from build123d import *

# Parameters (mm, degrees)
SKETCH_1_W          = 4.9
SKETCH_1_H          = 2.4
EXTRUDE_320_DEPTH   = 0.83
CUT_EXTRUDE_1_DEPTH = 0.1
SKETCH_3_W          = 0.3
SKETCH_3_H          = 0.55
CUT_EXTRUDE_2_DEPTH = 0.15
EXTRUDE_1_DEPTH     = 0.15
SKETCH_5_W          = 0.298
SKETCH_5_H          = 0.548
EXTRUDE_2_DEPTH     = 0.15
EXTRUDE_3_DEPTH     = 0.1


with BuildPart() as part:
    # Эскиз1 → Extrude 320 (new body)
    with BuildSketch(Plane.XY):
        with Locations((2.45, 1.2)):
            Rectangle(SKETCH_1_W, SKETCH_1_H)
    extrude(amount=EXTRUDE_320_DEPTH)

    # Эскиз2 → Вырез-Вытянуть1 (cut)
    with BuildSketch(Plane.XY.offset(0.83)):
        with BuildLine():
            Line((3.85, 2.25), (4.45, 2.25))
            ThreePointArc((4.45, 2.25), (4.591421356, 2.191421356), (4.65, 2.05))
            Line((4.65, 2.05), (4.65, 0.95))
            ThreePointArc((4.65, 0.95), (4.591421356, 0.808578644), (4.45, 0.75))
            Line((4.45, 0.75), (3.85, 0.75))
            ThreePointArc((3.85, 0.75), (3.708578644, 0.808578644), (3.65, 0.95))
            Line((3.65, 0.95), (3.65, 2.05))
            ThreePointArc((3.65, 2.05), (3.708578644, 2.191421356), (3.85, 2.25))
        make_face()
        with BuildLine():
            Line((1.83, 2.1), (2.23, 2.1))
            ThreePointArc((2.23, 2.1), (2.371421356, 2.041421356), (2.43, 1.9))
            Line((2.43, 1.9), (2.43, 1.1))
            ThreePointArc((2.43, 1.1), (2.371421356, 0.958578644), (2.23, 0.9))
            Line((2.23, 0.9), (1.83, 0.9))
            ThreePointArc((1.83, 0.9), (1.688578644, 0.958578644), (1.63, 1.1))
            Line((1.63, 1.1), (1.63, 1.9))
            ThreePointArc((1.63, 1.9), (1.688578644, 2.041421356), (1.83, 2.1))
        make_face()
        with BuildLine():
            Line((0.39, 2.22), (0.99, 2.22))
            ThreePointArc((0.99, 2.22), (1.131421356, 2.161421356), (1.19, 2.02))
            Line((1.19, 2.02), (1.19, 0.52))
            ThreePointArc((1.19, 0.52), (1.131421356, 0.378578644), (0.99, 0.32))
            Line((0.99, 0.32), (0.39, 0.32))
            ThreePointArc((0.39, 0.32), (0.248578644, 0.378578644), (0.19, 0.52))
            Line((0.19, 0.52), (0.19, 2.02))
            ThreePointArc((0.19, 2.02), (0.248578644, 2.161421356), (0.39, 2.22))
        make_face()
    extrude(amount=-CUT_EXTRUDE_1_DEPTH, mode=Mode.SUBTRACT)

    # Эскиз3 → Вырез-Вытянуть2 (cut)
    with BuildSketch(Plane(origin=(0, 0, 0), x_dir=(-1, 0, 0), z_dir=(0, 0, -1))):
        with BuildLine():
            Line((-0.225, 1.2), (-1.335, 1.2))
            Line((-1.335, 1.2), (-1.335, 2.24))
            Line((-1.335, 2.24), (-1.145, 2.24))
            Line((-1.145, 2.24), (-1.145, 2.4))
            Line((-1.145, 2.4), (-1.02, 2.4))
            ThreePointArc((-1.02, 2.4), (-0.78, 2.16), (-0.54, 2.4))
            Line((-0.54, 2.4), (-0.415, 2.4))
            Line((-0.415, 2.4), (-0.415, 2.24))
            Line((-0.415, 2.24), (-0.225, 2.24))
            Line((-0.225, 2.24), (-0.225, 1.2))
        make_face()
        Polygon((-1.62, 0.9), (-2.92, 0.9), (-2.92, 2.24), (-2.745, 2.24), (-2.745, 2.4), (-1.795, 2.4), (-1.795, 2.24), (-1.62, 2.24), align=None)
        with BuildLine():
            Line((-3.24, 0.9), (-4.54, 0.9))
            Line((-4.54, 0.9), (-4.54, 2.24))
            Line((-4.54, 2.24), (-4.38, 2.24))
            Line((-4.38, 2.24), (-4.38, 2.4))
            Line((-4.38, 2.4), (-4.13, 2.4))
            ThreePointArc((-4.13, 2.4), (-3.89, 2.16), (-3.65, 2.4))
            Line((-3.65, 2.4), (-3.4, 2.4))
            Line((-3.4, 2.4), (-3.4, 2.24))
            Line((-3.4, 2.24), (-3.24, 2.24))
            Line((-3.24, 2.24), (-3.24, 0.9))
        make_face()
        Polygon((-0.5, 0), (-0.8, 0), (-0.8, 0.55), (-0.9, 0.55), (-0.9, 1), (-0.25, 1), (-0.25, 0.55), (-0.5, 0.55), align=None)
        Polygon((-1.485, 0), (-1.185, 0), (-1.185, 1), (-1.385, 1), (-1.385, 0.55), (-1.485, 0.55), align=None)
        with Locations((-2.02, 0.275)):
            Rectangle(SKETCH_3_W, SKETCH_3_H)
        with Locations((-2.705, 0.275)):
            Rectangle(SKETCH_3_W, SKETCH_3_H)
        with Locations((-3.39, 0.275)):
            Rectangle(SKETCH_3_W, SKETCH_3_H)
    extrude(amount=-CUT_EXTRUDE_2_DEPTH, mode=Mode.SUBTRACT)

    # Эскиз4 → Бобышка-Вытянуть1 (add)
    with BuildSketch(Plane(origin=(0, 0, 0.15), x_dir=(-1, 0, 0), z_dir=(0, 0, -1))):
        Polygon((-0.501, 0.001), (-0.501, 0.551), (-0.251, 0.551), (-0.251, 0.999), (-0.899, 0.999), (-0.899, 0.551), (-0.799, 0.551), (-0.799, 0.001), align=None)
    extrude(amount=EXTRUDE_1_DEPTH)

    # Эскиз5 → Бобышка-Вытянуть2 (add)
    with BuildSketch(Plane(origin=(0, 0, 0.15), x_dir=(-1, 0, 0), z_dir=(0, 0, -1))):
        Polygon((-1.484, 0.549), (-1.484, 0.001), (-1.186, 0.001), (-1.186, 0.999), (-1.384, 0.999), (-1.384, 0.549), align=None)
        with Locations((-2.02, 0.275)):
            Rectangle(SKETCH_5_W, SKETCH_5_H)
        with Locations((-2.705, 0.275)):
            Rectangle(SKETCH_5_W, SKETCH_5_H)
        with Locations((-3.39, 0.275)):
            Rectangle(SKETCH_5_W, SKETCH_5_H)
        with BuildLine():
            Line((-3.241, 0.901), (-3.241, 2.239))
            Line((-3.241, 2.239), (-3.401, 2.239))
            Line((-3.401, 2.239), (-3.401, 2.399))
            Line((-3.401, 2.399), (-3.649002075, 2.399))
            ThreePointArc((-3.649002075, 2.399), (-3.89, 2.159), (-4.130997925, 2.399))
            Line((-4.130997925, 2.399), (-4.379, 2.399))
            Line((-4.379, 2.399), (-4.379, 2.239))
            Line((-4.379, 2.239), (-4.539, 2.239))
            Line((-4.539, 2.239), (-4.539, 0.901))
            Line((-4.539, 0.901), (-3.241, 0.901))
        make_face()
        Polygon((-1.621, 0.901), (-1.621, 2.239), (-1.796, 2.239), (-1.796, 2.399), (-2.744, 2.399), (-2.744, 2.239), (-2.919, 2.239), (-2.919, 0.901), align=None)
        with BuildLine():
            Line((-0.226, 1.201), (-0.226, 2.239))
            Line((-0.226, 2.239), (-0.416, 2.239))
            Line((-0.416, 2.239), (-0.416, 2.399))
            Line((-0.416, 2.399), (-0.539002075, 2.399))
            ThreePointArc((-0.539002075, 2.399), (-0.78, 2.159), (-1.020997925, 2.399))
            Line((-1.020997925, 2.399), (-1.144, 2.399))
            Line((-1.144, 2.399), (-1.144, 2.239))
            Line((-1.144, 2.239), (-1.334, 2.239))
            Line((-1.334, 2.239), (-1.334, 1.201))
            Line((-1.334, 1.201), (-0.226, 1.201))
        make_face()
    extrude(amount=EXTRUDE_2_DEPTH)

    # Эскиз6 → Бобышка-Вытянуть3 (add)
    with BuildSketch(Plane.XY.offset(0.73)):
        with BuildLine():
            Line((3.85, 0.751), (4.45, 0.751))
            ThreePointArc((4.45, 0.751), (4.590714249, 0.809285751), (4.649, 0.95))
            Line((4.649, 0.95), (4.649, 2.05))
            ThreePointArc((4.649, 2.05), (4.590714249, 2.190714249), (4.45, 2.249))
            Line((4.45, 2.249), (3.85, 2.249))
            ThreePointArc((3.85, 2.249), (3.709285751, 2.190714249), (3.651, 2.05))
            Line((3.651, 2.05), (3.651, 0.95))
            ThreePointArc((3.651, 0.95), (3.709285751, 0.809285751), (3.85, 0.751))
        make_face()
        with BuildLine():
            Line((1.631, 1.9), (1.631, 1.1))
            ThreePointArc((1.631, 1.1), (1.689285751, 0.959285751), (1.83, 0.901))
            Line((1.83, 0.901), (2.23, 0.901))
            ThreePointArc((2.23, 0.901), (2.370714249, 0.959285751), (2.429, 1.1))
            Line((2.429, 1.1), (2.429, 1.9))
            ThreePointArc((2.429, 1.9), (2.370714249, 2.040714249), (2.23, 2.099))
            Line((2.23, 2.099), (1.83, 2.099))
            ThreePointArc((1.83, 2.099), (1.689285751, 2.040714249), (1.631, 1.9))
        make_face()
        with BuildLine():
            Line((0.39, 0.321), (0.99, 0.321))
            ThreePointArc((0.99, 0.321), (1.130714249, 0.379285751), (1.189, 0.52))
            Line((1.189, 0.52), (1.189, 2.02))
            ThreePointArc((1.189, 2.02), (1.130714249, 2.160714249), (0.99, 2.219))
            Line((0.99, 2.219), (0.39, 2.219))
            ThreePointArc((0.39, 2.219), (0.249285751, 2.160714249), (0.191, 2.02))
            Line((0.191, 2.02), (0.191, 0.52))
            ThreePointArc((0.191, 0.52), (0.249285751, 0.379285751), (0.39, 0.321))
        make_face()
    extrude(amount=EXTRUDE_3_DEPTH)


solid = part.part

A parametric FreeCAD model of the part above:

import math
import FreeCAD as App
import Part
import Sketcher
from FreeCAD import Vector
Q = App.Units.Quantity


def add_polygon(sketch, points):
    """Adds a closed chain of lines whose ends are joined by coincident constraints."""
    first, n = sketch.GeometryCount, len(points)
    for a, b in zip(points, points[1:] + points[:1]):
        sketch.addGeometry(Part.LineSegment(App.Vector(*a, 0), App.Vector(*b, 0)), False)
    for i in range(n):
        sketch.addConstraint(Sketcher.Constraint("Coincident", first + i, 2, first + (i + 1) % n, 1))

doc = App.newDocument("Part")
body = doc.addObject("PartDesign::Body", "Body")

sketch1 = body.newObject("Sketcher::SketchObject", "Sketch")
sketch1.AttachmentSupport = (doc.getObject("XY_Plane"), [""])
sketch1.MapMode = "FlatFace"
add_polygon(sketch1, [(0, 2.4), (0, 0), (4.9, 0), (4.9, 2.4)])
sketch1.addConstraint([
    Sketcher.Constraint("Vertical", 0),
    Sketcher.Constraint("Horizontal", 1),
    Sketcher.Constraint("Vertical", 2),
    Sketcher.Constraint("Horizontal", 3),
    Sketcher.Constraint("Coincident", 0, 2, -1, 1),
    Sketcher.Constraint("DistanceX", 1, 1, 1, 2, Q("4.9 mm")),
    Sketcher.Constraint("DistanceY", 0, 2, 0, 1, Q("2.4 mm")),
])
pad1 = body.newObject("PartDesign::Pad", "Pad")
pad1.Profile = sketch1
pad1.Length = 0.83

sketch2 = body.newObject("Sketcher::SketchObject", "Sketch001")
sketch2.AttachmentSupport = (doc.getObject("XY_Plane"), [""])
sketch2.MapMode = "FlatFace"
sketch2.AttachmentOffset = App.Placement(Vector(0, 0, 0.83), App.Rotation())
sketch2.addGeometry([
    Part.LineSegment(Vector(4.45, 2.25, 0), Vector(3.85, 2.25, 0)),
    Part.ArcOfCircle(Part.Circle(Vector(3.85, 2.05, 0), Vector(0, 0, 1), 0.2), math.radians(90), math.radians(180)),
    Part.LineSegment(Vector(3.65, 2.05, 0), Vector(3.65, 0.95, 0)),
    Part.ArcOfCircle(Part.Circle(Vector(3.85, 0.95, 0), Vector(0, 0, 1), 0.2), math.radians(-180), math.radians(-90)),
    Part.LineSegment(Vector(3.85, 0.75, 0), Vector(4.45, 0.75, 0)),
    Part.ArcOfCircle(Part.Circle(Vector(4.45, 0.95, 0), Vector(0, 0, 1), 0.2), math.radians(-90), math.radians(0)),
    Part.LineSegment(Vector(4.65, 0.95, 0), Vector(4.65, 2.05, 0)),
    Part.ArcOfCircle(Part.Circle(Vector(4.45, 2.05, 0), Vector(0, 0, 1), 0.2), math.radians(0), math.radians(90)),
    Part.LineSegment(Vector(2.23, 2.1, 0), Vector(1.83, 2.1, 0)),
    Part.ArcOfCircle(Part.Circle(Vector(1.83, 1.9, 0), Vector(0, 0, 1), 0.2), math.radians(90), math.radians(180)),
    Part.LineSegment(Vector(1.63, 1.9, 0), Vector(1.63, 1.1, 0)),
    Part.ArcOfCircle(Part.Circle(Vector(1.83, 1.1, 0), Vector(0, 0, 1), 0.2), math.radians(-180), math.radians(-90)),
    Part.LineSegment(Vector(1.83, 0.9, 0), Vector(2.23, 0.9, 0)),
    Part.ArcOfCircle(Part.Circle(Vector(2.23, 1.1, 0), Vector(0, 0, 1), 0.2), math.radians(-90), math.radians(0)),
    Part.LineSegment(Vector(2.43, 1.1, 0), Vector(2.43, 1.9, 0)),
    Part.ArcOfCircle(Part.Circle(Vector(2.23, 1.9, 0), Vector(0, 0, 1), 0.2), math.radians(0), math.radians(90)),
    Part.LineSegment(Vector(0.99, 2.22, 0), Vector(0.39, 2.22, 0)),
    Part.ArcOfCircle(Part.Circle(Vector(0.39, 2.02, 0), Vector(0, 0, 1), 0.2), math.radians(90), math.radians(180)),
    Part.LineSegment(Vector(0.19, 2.02, 0), Vector(0.19, 0.52, 0)),
    Part.ArcOfCircle(Part.Circle(Vector(0.39, 0.52, 0), Vector(0, 0, 1), 0.2), math.radians(-180), math.radians(-90)),
    Part.LineSegment(Vector(0.39, 0.32, 0), Vector(0.99, 0.32, 0)),
    Part.ArcOfCircle(Part.Circle(Vector(0.99, 0.52, 0), Vector(0, 0, 1), 0.2), math.radians(-90), math.radians(0)),
    Part.LineSegment(Vector(1.19, 0.52, 0), Vector(1.19, 2.02, 0)),
    Part.ArcOfCircle(Part.Circle(Vector(0.99, 2.02, 0), Vector(0, 0, 1), 0.2), math.radians(0), math.radians(90)),
], False)
sketch2.addConstraint([
    Sketcher.Constraint("Tangent", 0, 2, 1, 1),
    Sketcher.Constraint("Tangent", 1, 2, 2, 1),
    Sketcher.Constraint("Tangent", 2, 2, 3, 1),
    Sketcher.Constraint("Tangent", 3, 2, 4, 1),
    Sketcher.Constraint("Tangent", 4, 2, 5, 1),
    Sketcher.Constraint("Tangent", 5, 2, 6, 1),
    Sketcher.Constraint("Tangent", 6, 2, 7, 1),
    Sketcher.Constraint("Tangent", 7, 2, 0, 1),
    Sketcher.Constraint("Tangent", 8, 2, 9, 1),
    Sketcher.Constraint("Tangent", 9, 2, 10, 1),
    Sketcher.Constraint("Tangent", 10, 2, 11, 1),
    Sketcher.Constraint("Tangent", 11, 2, 12, 1),
    Sketcher.Constraint("Tangent", 12, 2, 13, 1),
    Sketcher.Constraint("Tangent", 13, 2, 14, 1),
    Sketcher.Constraint("Tangent", 14, 2, 15, 1),
    Sketcher.Constraint("Tangent", 15, 2, 8, 1),
    Sketcher.Constraint("Tangent", 16, 2, 17, 1),
    Sketcher.Constraint("Tangent", 17, 2, 18, 1),
    Sketcher.Constraint("Tangent", 18, 2, 19, 1),
    Sketcher.Constraint("Tangent", 19, 2, 20, 1),
    Sketcher.Constraint("Tangent", 20, 2, 21, 1),
    Sketcher.Constraint("Tangent", 21, 2, 22, 1),
    Sketcher.Constraint("Tangent", 22, 2, 23, 1),
    Sketcher.Constraint("Tangent", 23, 2, 16, 1),
    Sketcher.Constraint("Horizontal", 0),
    Sketcher.Constraint("Vertical", 2),
    Sketcher.Constraint("Horizontal", 4),
    Sketcher.Constraint("Vertical", 6),
    Sketcher.Constraint("Horizontal", 8),
    Sketcher.Constraint("Vertical", 10),
    Sketcher.Constraint("Horizontal", 12),
    Sketcher.Constraint("Vertical", 14),
    Sketcher.Constraint("Horizontal", 16),
    Sketcher.Constraint("Vertical", 18),
    Sketcher.Constraint("Horizontal", 20),
    Sketcher.Constraint("Vertical", 22),
    Sketcher.Constraint("Equal", 1, 3),
    Sketcher.Constraint("Equal", 3, 5),
    Sketcher.Constraint("Equal", 5, 7),
    Sketcher.Constraint("Equal", 7, 9),
    Sketcher.Constraint("Equal", 9, 11),
    Sketcher.Constraint("Equal", 11, 13),
    Sketcher.Constraint("Equal", 13, 15),
    Sketcher.Constraint("Equal", 15, 17),
    Sketcher.Constraint("Equal", 17, 19),
    Sketcher.Constraint("Equal", 19, 21),
    Sketcher.Constraint("Equal", 21, 23),
    Sketcher.Constraint("Equal", 4, 16),
    Sketcher.Constraint("Radius", 1, Q("0.2 mm")),
    Sketcher.Constraint("DistanceX", 0, 2, 0, 1, Q("0.6 mm")),
    Sketcher.Constraint("DistanceX", 8, 2, 8, 1, Q("0.4 mm")),
    Sketcher.Constraint("DistanceY", 2, 2, 2, 1, Q("1.1 mm")),
    Sketcher.Constraint("DistanceY", 10, 2, 10, 1, Q("0.8 mm")),
    Sketcher.Constraint("DistanceY", 18, 2, 18, 1, Q("1.5 mm")),
    Sketcher.Constraint("DistanceY", -1, 1, 9, 3, Q("1.9 mm")),
    Sketcher.Constraint("DistanceX", -1, 1, 1, 3, Q("3.85 mm")),
    Sketcher.Constraint("DistanceY", -1, 1, 1, 3, Q("2.05 mm")),
    Sketcher.Constraint("DistanceX", -1, 1, 9, 3, Q("1.83 mm")),
    Sketcher.Constraint("DistanceX", -1, 1, 17, 3, Q("0.39 mm")),
    Sketcher.Constraint("DistanceY", -1, 1, 17, 3, Q("2.02 mm")),
])
pocket1 = body.newObject("PartDesign::Pocket", "Pocket")
pocket1.Profile = sketch2
pocket1.Length = 0.1

sketch3 = body.newObject("Sketcher::SketchObject", "Sketch002")
sketch3.AttachmentSupport = (doc.getObject("XY_Plane"), [""])
sketch3.MapMode = "FlatFace"
sketch3.addGeometry(Part.LineSegment(Vector(1.33, 1.2, 0), Vector(0.23, 1.2, 0)), False)
sketch3.addGeometry(Part.LineSegment(Vector(0.23, 1.2, 0), Vector(0.23, 2.24, 0)), False)
sketch3.addGeometry(Part.LineSegment(Vector(0.23, 2.24, 0), Vector(0.41, 2.24, 0)), False)
sketch3.addGeometry(Part.LineSegment(Vector(0.41, 2.24, 0), Vector(0.41, 2.4, 0)), False)
sketch3.addGeometry(Part.LineSegment(Vector(0.41, 2.4, 0), Vector(0.54, 2.4, 0)), False)
sketch3.addGeometry(Part.ArcOfCircle(Part.Circle(Vector(0.78, 2.4, 0), Vector(0, 0, 1), 0.24), math.radians(180), math.radians(360)), False)
sketch3.addGeometry(Part.LineSegment(Vector(1.02, 2.4, 0), Vector(1.15, 2.4, 0)), False)
sketch3.addGeometry(Part.LineSegment(Vector(1.15, 2.4, 0), Vector(1.15, 2.24, 0)), False)
sketch3.addGeometry(Part.LineSegment(Vector(1.15, 2.24, 0), Vector(1.33, 2.24, 0)), False)
sketch3.addGeometry(Part.LineSegment(Vector(1.33, 2.24, 0), Vector(1.33, 1.2, 0)), False)
add_polygon(sketch3, [(2.92, 0.9), (1.62, 0.9), (1.62, 2.24), (1.79, 2.24), (1.79, 2.4), (2.75, 2.4), (2.75, 2.24), (2.92, 2.24)])
sketch3.addGeometry(Part.LineSegment(Vector(4.54, 0.9, 0), Vector(3.24, 0.9, 0)), False)
sketch3.addGeometry(Part.LineSegment(Vector(3.24, 0.9, 0), Vector(3.24, 2.24, 0)), False)
sketch3.addGeometry(Part.LineSegment(Vector(3.24, 2.24, 0), Vector(3.4, 2.24, 0)), False)
sketch3.addGeometry(Part.LineSegment(Vector(3.4, 2.24, 0), Vector(3.4, 2.4, 0)), False)
sketch3.addGeometry(Part.LineSegment(Vector(3.4, 2.4, 0), Vector(3.65, 2.4, 0)), False)
sketch3.addGeometry(Part.ArcOfCircle(Part.Circle(Vector(3.89, 2.4, 0), Vector(0, 0, 1), 0.24), math.radians(180), math.radians(360)), False)
sketch3.addGeometry(Part.LineSegment(Vector(4.13, 2.4, 0), Vector(4.38, 2.4, 0)), False)
sketch3.addGeometry(Part.LineSegment(Vector(4.38, 2.4, 0), Vector(4.38, 2.24, 0)), False)
sketch3.addGeometry(Part.LineSegment(Vector(4.38, 2.24, 0), Vector(4.54, 2.24, 0)), False)
sketch3.addGeometry(Part.LineSegment(Vector(4.54, 2.24, 0), Vector(4.54, 0.9, 0)), False)
add_polygon(sketch3, [(0.8, 0), (0.5, 0), (0.5, 0.55), (0.25, 0.55), (0.25, 1), (0.9, 1), (0.9, 0.55), (0.8, 0.55)])
add_polygon(sketch3, [(1.49, 0), (1.19, 0), (1.19, 1), (1.39, 1), (1.39, 0.55), (1.49, 0.55)])
add_polygon(sketch3, [(2.17, 0.55), (2.17, 0), (1.87, 0), (1.87, 0.55)])
add_polygon(sketch3, [(2.85, 0.55), (2.85, 0), (2.56, 0), (2.56, 0.55)])
add_polygon(sketch3, [(3.54, 0.55), (3.54, 0), (3.24, 0), (3.24, 0.55)])
sketch3.addConstraint([
    Sketcher.Constraint("Coincident", 0, 2, 1, 1),
    Sketcher.Constraint("Coincident", 1, 2, 2, 1),
    Sketcher.Constraint("Coincident", 2, 2, 3, 1),
    Sketcher.Constraint("Coincident", 3, 2, 4, 1),
    Sketcher.Constraint("Coincident", 4, 2, 5, 1),
    Sketcher.Constraint("Coincident", 5, 2, 6, 1),
    Sketcher.Constraint("Coincident", 6, 2, 7, 1),
    Sketcher.Constraint("Coincident", 7, 2, 8, 1),
    Sketcher.Constraint("Coincident", 8, 2, 9, 1),
    Sketcher.Constraint("Coincident", 9, 2, 0, 1),
    Sketcher.Constraint("Coincident", 18, 2, 19, 1),
    Sketcher.Constraint("Coincident", 19, 2, 20, 1),
    Sketcher.Constraint("Coincident", 20, 2, 21, 1),
    Sketcher.Constraint("Coincident", 21, 2, 22, 1),
    Sketcher.Constraint("Coincident", 22, 2, 23, 1),
    Sketcher.Constraint("Coincident", 23, 2, 24, 1),
    Sketcher.Constraint("Coincident", 24, 2, 25, 1),
    Sketcher.Constraint("Coincident", 25, 2, 26, 1),
    Sketcher.Constraint("Coincident", 26, 2, 27, 1),
    Sketcher.Constraint("Coincident", 27, 2, 18, 1),
    Sketcher.Constraint("Horizontal", 0),
    Sketcher.Constraint("Vertical", 1),
    Sketcher.Constraint("Horizontal", 2),
    Sketcher.Constraint("Vertical", 3),
    Sketcher.Constraint("Horizontal", 4),
    Sketcher.Constraint("Horizontal", 6),
    Sketcher.Constraint("Vertical", 7),
    Sketcher.Constraint("Horizontal", 8),
    Sketcher.Constraint("Vertical", 9),
    Sketcher.Constraint("Horizontal", 10),
    Sketcher.Constraint("Vertical", 11),
    Sketcher.Constraint("Horizontal", 12),
    Sketcher.Constraint("Vertical", 13),
    Sketcher.Constraint("Horizontal", 14),
    Sketcher.Constraint("Vertical", 15),
    Sketcher.Constraint("Horizontal", 16),
    Sketcher.Constraint("Vertical", 17),
    Sketcher.Constraint("Horizontal", 18),
    Sketcher.Constraint("Vertical", 19),
    Sketcher.Constraint("Horizontal", 20),
    Sketcher.Constraint("Vertical", 21),
    Sketcher.Constraint("Horizontal", 22),
    Sketcher.Constraint("Horizontal", 24),
    Sketcher.Constraint("Vertical", 25),
    Sketcher.Constraint("Horizontal", 26),
    Sketcher.Constraint("Vertical", 27),
    Sketcher.Constraint("Horizontal", 28),
    Sketcher.Constraint("Vertical", 29),
    Sketcher.Constraint("Horizontal", 30),
    Sketcher.Constraint("Vertical", 31),
    Sketcher.Constraint("Horizontal", 32),
    Sketcher.Constraint("Vertical", 33),
    Sketcher.Constraint("Horizontal", 34),
    Sketcher.Constraint("Vertical", 35),
    Sketcher.Constraint("Horizontal", 36),
    Sketcher.Constraint("Vertical", 37),
    Sketcher.Constraint("Horizontal", 38),
    Sketcher.Constraint("Vertical", 39),
    Sketcher.Constraint("Horizontal", 40),
    Sketcher.Constraint("Vertical", 41),
    Sketcher.Constraint("Vertical", 42),
    Sketcher.Constraint("Horizontal", 43),
    Sketcher.Constraint("Vertical", 44),
    Sketcher.Constraint("Horizontal", 45),
    Sketcher.Constraint("Vertical", 46),
    Sketcher.Constraint("Horizontal", 47),
    Sketcher.Constraint("Vertical", 48),
    Sketcher.Constraint("Horizontal", 49),
    Sketcher.Constraint("Vertical", 50),
    Sketcher.Constraint("Horizontal", 51),
    Sketcher.Constraint("Vertical", 52),
    Sketcher.Constraint("Horizontal", 53),
    Sketcher.Constraint("Equal", 5, 23),
    Sketcher.Constraint("PointOnObject", 28, 2, -1),
    Sketcher.Constraint("PointOnObject", 36, 2, -1),
    Sketcher.Constraint("PointOnObject", 42, 2, -1),
    Sketcher.Constraint("PointOnObject", 46, 2, -1),
    Sketcher.Constraint("PointOnObject", 50, 2, -1),
    Sketcher.Constraint("Horizontal", 5, 3, 23, 3),
    Sketcher.Constraint("Horizontal", 23, 3, 3, 2),
    Sketcher.Constraint("Horizontal", 4, 2, 5, 2),
    Sketcher.Constraint("Horizontal", 2, 2, 7, 2),
    Sketcher.Constraint("Horizontal", 8, 2, 11, 2),
    Sketcher.Constraint("Horizontal", 6, 2, 13, 2),
    Sketcher.Constraint("Horizontal", 12, 2, 15, 2),
    Sketcher.Constraint("Horizontal", 17, 2, 18, 2),
    Sketcher.Constraint("Horizontal", 16, 2, 19, 2),
    Sketcher.Constraint("Horizontal", 14, 2, 21, 2),
    Sketcher.Constraint("Horizontal", 22, 2, 23, 2),
    Sketcher.Constraint("Horizontal", 20, 2, 25, 2),
    Sketcher.Constraint("Horizontal", 30, 2, 33, 2),
    Sketcher.Constraint("Horizontal", 32, 2, 37, 2),
    Sketcher.Constraint("Horizontal", 34, 2, 39, 2),
    Sketcher.Constraint("Horizontal", 40, 2, 44, 2),
    Sketcher.Constraint("Horizontal", 45, 2, 48, 2),
    Sketcher.Constraint("Horizontal", 49, 2, 52, 2),
    Sketcher.Constraint("Vertical", 19, 2, 51, 2),
    Sketcher.Constraint("Equal", 4, 6),
    Sketcher.Constraint("Equal", 2, 8),
    Sketcher.Constraint("Equal", 12, 16),
    Sketcher.Constraint("Equal", 10, 18),
    Sketcher.Constraint("Equal", 22, 24),
    Sketcher.Constraint("Equal", 20, 26),
    Sketcher.Constraint("Equal", 24, 30),
    Sketcher.Constraint("Equal", 28, 36),
    Sketcher.Constraint("Equal", 34, 40),
    Sketcher.Constraint("Equal", 36, 43),
    Sketcher.Constraint("Equal", 45, 47),
    Sketcher.Constraint("Equal", 49, 51),
    Sketcher.Constraint("Equal", 26, 3),
    Sketcher.Constraint("DistanceY", 37, 1, 37, 2, Q("1 mm")),
    Sketcher.Constraint("Radius", 5, Q("0.24 mm")),
    Sketcher.Constraint("DistanceX", 10, 2, 10, 1, Q("1.3 mm")),
    Sketcher.Constraint("DistanceX", 28, 2, 28, 1, Q("0.3 mm")),
    Sketcher.Constraint("DistanceX", 34, 2, 34, 1, Q("0.1 mm")),
    Sketcher.Constraint("DistanceX", 0, 2, 0, 1, Q("1.11 mm")),
    Sketcher.Constraint("DistanceX", 2, 1, 2, 2, Q("0.19 mm")),
    Sketcher.Constraint("DistanceX", 14, 1, 14, 2, Q("0.95 mm")),
    Sketcher.Constraint("DistanceX", 20, 1, 20, 2, Q("0.16 mm")),
    Sketcher.Constraint("DistanceY", 1, 1, 1, 2, Q("1.04 mm")),
    Sketcher.Constraint("DistanceY", 11, 1, 11, 2, Q("1.34 mm")),
    Sketcher.Constraint("DistanceY", 29, 1, 29, 2, Q("0.55 mm")),
    Sketcher.Constraint("DistanceY", -1, 1, 5, 3, Q("2.4 mm")),
    Sketcher.Constraint("DistanceX", -1, 1, 20, 2, Q("3.4 mm")),
    Sketcher.Constraint("DistanceX", -1, 1, 28, 2, Q("0.5 mm")),
    Sketcher.Constraint("DistanceX", 5, 2, 11, 2, Q("0.6 mm")),
    Sketcher.Constraint("DistanceX", -1, 1, 5, 3, Q("0.78 mm")),
    Sketcher.Constraint("DistanceX", -1, 1, 42, 2, Q("2.17 mm")),
    Sketcher.Constraint("DistanceX", 37, 2, 9, 2, Q("0.15 mm")),
    Sketcher.Constraint("DistanceX", -1, 1, 46, 2, Q("2.855 mm")),
])
pocket2 = body.newObject("PartDesign::Pocket", "Pocket001")
pocket2.Profile = sketch3
pocket2.Length = 0.15
pocket2.Reversed = True

sketch4 = body.newObject("Sketcher::SketchObject", "Sketch003")
sketch4.AttachmentSupport = (doc.getObject("XY_Plane"), [""])
sketch4.MapMode = "FlatFace"
sketch4.AttachmentOffset = App.Placement(Vector(0, 0, 0.15), App.Rotation())
add_polygon(sketch4, [(0.5, 0), (0.5, 0.55), (0.25, 0.55), (0.25, 1), (0.9, 1), (0.9, 0.55), (0.8, 0.55), (0.8, 0)])
sketch4.addConstraint([
    Sketcher.Constraint("Vertical", 0),
    Sketcher.Constraint("Horizontal", 1),
    Sketcher.Constraint("Vertical", 2),
    Sketcher.Constraint("Horizontal", 3),
    Sketcher.Constraint("Vertical", 4),
    Sketcher.Constraint("Horizontal", 5),
    Sketcher.Constraint("Vertical", 6),
    Sketcher.Constraint("Horizontal", 7),
    Sketcher.Constraint("Horizontal", 1, 2, 4, 2),
    Sketcher.Constraint("DistanceX", 5, 2, 5, 1, Q("0.1 mm")),
    Sketcher.Constraint("DistanceX", 1, 2, 1, 1, Q("0.25 mm")),
    Sketcher.Constraint("DistanceY", 0, 1, 0, 2, Q("0.55 mm")),
    Sketcher.Constraint("DistanceX", 3, 1, 3, 2, Q("0.648 mm")),
    Sketcher.Constraint("DistanceY", 2, 1, 2, 2, Q("0.448 mm")),
    Sketcher.Constraint("DistanceX", -1, 1, 0, 2, Q("0.501 mm")),
    Sketcher.Constraint("DistanceY", -1, 1, 0, 2, Q("0.551 mm")),
])
pad2 = body.newObject("PartDesign::Pad", "Pad001")
pad2.Profile = sketch4
pad2.Length = 0.15
pad2.Reversed = True

sketch5 = body.newObject("Sketcher::SketchObject", "Sketch004")
sketch5.AttachmentSupport = (doc.getObject("XY_Plane"), [""])
sketch5.MapMode = "FlatFace"
sketch5.AttachmentOffset = App.Placement(Vector(0, 0, 0.15), App.Rotation())
add_polygon(sketch5, [(1.48, 0.55), (1.48, 0), (1.19, 0), (1.19, 1), (1.38, 1), (1.38, 0.55)])
add_polygon(sketch5, [(2.17, 0.55), (2.17, 0), (1.87, 0), (1.87, 0.55)])
add_polygon(sketch5, [(2.85, 0.55), (2.85, 0), (2.56, 0), (2.56, 0.55)])
add_polygon(sketch5, [(3.54, 0.55), (3.54, 0), (3.24, 0), (3.24, 0.55)])
sketch5.addGeometry(Part.LineSegment(Vector(3.24, 0.9, 0), Vector(3.24, 2.24, 0)), False)
sketch5.addGeometry(Part.LineSegment(Vector(3.24, 2.24, 0), Vector(3.4, 2.24, 0)), False)
sketch5.addGeometry(Part.LineSegment(Vector(3.4, 2.24, 0), Vector(3.4, 2.4, 0)), False)
sketch5.addGeometry(Part.LineSegment(Vector(3.4, 2.4, 0), Vector(3.65, 2.4, 0)), False)
sketch5.addGeometry(Part.ArcOfCircle(Part.Circle(Vector(3.89, 2.4, 0), Vector(0, 0, 1), 0.24), math.radians(-180), math.radians(0)), False)
sketch5.addGeometry(Part.LineSegment(Vector(4.13, 2.4, 0), Vector(4.38, 2.4, 0)), False)
sketch5.addGeometry(Part.LineSegment(Vector(4.38, 2.4, 0), Vector(4.38, 2.24, 0)), False)
sketch5.addGeometry(Part.LineSegment(Vector(4.38, 2.24, 0), Vector(4.54, 2.24, 0)), False)
sketch5.addGeometry(Part.LineSegment(Vector(4.54, 2.24, 0), Vector(4.54, 0.9, 0)), False)
sketch5.addGeometry(Part.LineSegment(Vector(4.54, 0.9, 0), Vector(3.24, 0.9, 0)), False)
add_polygon(sketch5, [(1.62, 0.9), (1.62, 2.24), (1.8, 2.24), (1.8, 2.4), (2.74, 2.4), (2.74, 2.24), (2.92, 2.24), (2.92, 0.9)])
sketch5.addGeometry(Part.LineSegment(Vector(0.23, 1.2, 0), Vector(0.23, 2.24, 0)), False)
sketch5.addGeometry(Part.LineSegment(Vector(0.23, 2.24, 0), Vector(0.42, 2.24, 0)), False)
sketch5.addGeometry(Part.LineSegment(Vector(0.42, 2.24, 0), Vector(0.42, 2.4, 0)), False)
sketch5.addGeometry(Part.LineSegment(Vector(0.42, 2.4, 0), Vector(0.54, 2.4, 0)), False)
sketch5.addGeometry(Part.ArcOfCircle(Part.Circle(Vector(0.78, 2.4, 0), Vector(0, 0, 1), 0.24), math.radians(-180), math.radians(0)), False)
sketch5.addGeometry(Part.LineSegment(Vector(1.02, 2.4, 0), Vector(1.14, 2.4, 0)), False)
sketch5.addGeometry(Part.LineSegment(Vector(1.14, 2.4, 0), Vector(1.14, 2.24, 0)), False)
sketch5.addGeometry(Part.LineSegment(Vector(1.14, 2.24, 0), Vector(1.33, 2.24, 0)), False)
sketch5.addGeometry(Part.LineSegment(Vector(1.33, 2.24, 0), Vector(1.33, 1.2, 0)), False)
sketch5.addGeometry(Part.LineSegment(Vector(1.33, 1.2, 0), Vector(0.23, 1.2, 0)), False)
sketch5.addConstraint([
    Sketcher.Constraint("Coincident", 18, 2, 19, 1),
    Sketcher.Constraint("Coincident", 19, 2, 20, 1),
    Sketcher.Constraint("Coincident", 20, 2, 21, 1),
    Sketcher.Constraint("Coincident", 21, 2, 22, 1),
    Sketcher.Constraint("Coincident", 22, 2, 23, 1),
    Sketcher.Constraint("Coincident", 23, 2, 24, 1),
    Sketcher.Constraint("Coincident", 24, 2, 25, 1),
    Sketcher.Constraint("Coincident", 25, 2, 26, 1),
    Sketcher.Constraint("Coincident", 26, 2, 27, 1),
    Sketcher.Constraint("Coincident", 27, 2, 18, 1),
    Sketcher.Constraint("Coincident", 36, 2, 37, 1),
    Sketcher.Constraint("Coincident", 37, 2, 38, 1),
    Sketcher.Constraint("Coincident", 38, 2, 39, 1),
    Sketcher.Constraint("Coincident", 39, 2, 40, 1),
    Sketcher.Constraint("Coincident", 40, 2, 41, 1),
    Sketcher.Constraint("Coincident", 41, 2, 42, 1),
    Sketcher.Constraint("Coincident", 42, 2, 43, 1),
    Sketcher.Constraint("Coincident", 43, 2, 44, 1),
    Sketcher.Constraint("Coincident", 44, 2, 45, 1),
    Sketcher.Constraint("Coincident", 45, 2, 36, 1),
    Sketcher.Constraint("Vertical", 0),
    Sketcher.Constraint("Horizontal", 1),
    Sketcher.Constraint("Vertical", 2),
    Sketcher.Constraint("Horizontal", 3),
    Sketcher.Constraint("Vertical", 4),
    Sketcher.Constraint("Horizontal", 5),
    Sketcher.Constraint("Vertical", 6),
    Sketcher.Constraint("Horizontal", 7),
    Sketcher.Constraint("Vertical", 8),
    Sketcher.Constraint("Horizontal", 9),
    Sketcher.Constraint("Vertical", 10),
    Sketcher.Constraint("Horizontal", 11),
    Sketcher.Constraint("Vertical", 12),
    Sketcher.Constraint("Horizontal", 13),
    Sketcher.Constraint("Vertical", 14),
    Sketcher.Constraint("Horizontal", 15),
    Sketcher.Constraint("Vertical", 16),
    Sketcher.Constraint("Horizontal", 17),
    Sketcher.Constraint("Vertical", 18),
    Sketcher.Constraint("Horizontal", 19),
    Sketcher.Constraint("Vertical", 20),
    Sketcher.Constraint("Horizontal", 21),
    Sketcher.Constraint("Horizontal", 23),
    Sketcher.Constraint("Vertical", 24),
    Sketcher.Constraint("Horizontal", 25),
    Sketcher.Constraint("Vertical", 26),
    Sketcher.Constraint("Horizontal", 27),
    Sketcher.Constraint("Vertical", 28),
    Sketcher.Constraint("Horizontal", 29),
    Sketcher.Constraint("Vertical", 30),
    Sketcher.Constraint("Horizontal", 31),
    Sketcher.Constraint("Vertical", 32),
    Sketcher.Constraint("Horizontal", 33),
    Sketcher.Constraint("Vertical", 34),
    Sketcher.Constraint("Horizontal", 35),
    Sketcher.Constraint("Vertical", 36),
    Sketcher.Constraint("Horizontal", 37),
    Sketcher.Constraint("Vertical", 38),
    Sketcher.Constraint("Horizontal", 39),
    Sketcher.Constraint("Horizontal", 41),
    Sketcher.Constraint("Vertical", 42),
    Sketcher.Constraint("Horizontal", 43),
    Sketcher.Constraint("Vertical", 44),
    Sketcher.Constraint("Horizontal", 45),
    Sketcher.Constraint("Equal", 22, 40),
    Sketcher.Constraint("Horizontal", 22, 3, 40, 3),
    Sketcher.Constraint("Horizontal", 1, 2, 6, 2),
    Sketcher.Constraint("Horizontal", 5, 2, 8, 2),
    Sketcher.Constraint("Horizontal", 7, 2, 10, 2),
    Sketcher.Constraint("Horizontal", 9, 2, 12, 2),
    Sketcher.Constraint("Horizontal", 11, 2, 14, 2),
    Sketcher.Constraint("Horizontal", 13, 2, 16, 2),
    Sketcher.Constraint("Horizontal", 21, 2, 22, 2),
    Sketcher.Constraint("Horizontal", 19, 2, 24, 2),
    Sketcher.Constraint("Horizontal", 25, 2, 28, 2),
    Sketcher.Constraint("Horizontal", 23, 2, 30, 2),
    Sketcher.Constraint("Horizontal", 29, 2, 32, 2),
    Sketcher.Constraint("Horizontal", 27, 2, 34, 2),
    Sketcher.Constraint("Horizontal", 33, 2, 36, 2),
    Sketcher.Constraint("Horizontal", 31, 2, 38, 2),
    Sketcher.Constraint("Horizontal", 39, 2, 40, 2),
    Sketcher.Constraint("Horizontal", 37, 2, 42, 2),
    Sketcher.Constraint("Vertical", 16, 2, 18, 2),
    Sketcher.Constraint("Equal", 1, 7),
    Sketcher.Constraint("Equal", 9, 11),
    Sketcher.Constraint("Equal", 13, 15),
    Sketcher.Constraint("Equal", 21, 23),
    Sketcher.Constraint("Equal", 19, 25),
    Sketcher.Constraint("Equal", 29, 33),
    Sketcher.Constraint("Equal", 27, 35),
    Sketcher.Constraint("Equal", 39, 41),
    Sketcher.Constraint("Equal", 37, 43),
    Sketcher.Constraint("Equal", 25, 20),
    Sketcher.Constraint("DistanceX", 5, 1, 5, 2, Q("0.1 mm")),
    Sketcher.Constraint("Radius", 22, Q("0.241 mm")),
    Sketcher.Constraint("DistanceX", 17, 2, 26, 2, Q("1 mm")),
    Sketcher.Constraint("DistanceX", 19, 1, 19, 2, Q("0.16 mm")),
    Sketcher.Constraint("DistanceX", 37, 1, 37, 2, Q("0.19 mm")),
    Sketcher.Constraint("DistanceY", 4, 2, 4, 1, Q("0.45 mm")),
    Sketcher.Constraint("DistanceY", -1, 1, 22, 3, Q("2.4 mm")),
    Sketcher.Constraint("DistanceY", 14, 2, 26, 2, Q("0.9 mm")),
    Sketcher.Constraint("DistanceY", 3, 2, 30, 2, Q("1.4 mm")),
    Sketcher.Constraint("DistanceY", 35, 2, 44, 2, Q("0.3 mm")),
    Sketcher.Constraint("DistanceX", 1, 2, 1, 1, Q("0.298 mm")),
    Sketcher.Constraint("DistanceX", 29, 1, 29, 2, Q("0.175 mm")),
    Sketcher.Constraint("DistanceX", 45, 2, 45, 1, Q("1.108 mm")),
    Sketcher.Constraint("DistanceY", 0, 2, 0, 1, Q("0.548 mm")),
    Sketcher.Constraint("DistanceX", -1, 1, 22, 3, Q("3.89 mm")),
    Sketcher.Constraint("DistanceX", -1, 1, 40, 3, Q("0.78 mm")),
    Sketcher.Constraint("DistanceX", 0, 2, 10, 2, Q("1.37 mm")),
    Sketcher.Constraint("DistanceX", 6, 2, 14, 2, Q("1.37 mm")),
    Sketcher.Constraint("DistanceX", 28, 2, 18, 2, Q("1.62 mm")),
    Sketcher.Constraint("DistanceX", 2, 2, 29, 2, Q("0.61 mm")),
    Sketcher.Constraint("DistanceY", -1, 1, 0, 2, Q("0.001 mm")),
])
pad3 = body.newObject("PartDesign::Pad", "Pad002")
pad3.Profile = sketch5
pad3.Length = 0.15
pad3.Reversed = True

sketch6 = body.newObject("Sketcher::SketchObject", "Sketch005")
sketch6.AttachmentSupport = (doc.getObject("XY_Plane"), [""])
sketch6.MapMode = "FlatFace"
sketch6.AttachmentOffset = App.Placement(Vector(0, 0, 0.73), App.Rotation())
sketch6.addGeometry([
    Part.LineSegment(Vector(3.85, 0.75, 0), Vector(4.45, 0.75, 0)),
    Part.ArcOfCircle(Part.Circle(Vector(4.45, 0.95, 0), Vector(0, 0, 1), 0.2), math.radians(-90), math.radians(0)),
    Part.LineSegment(Vector(4.65, 0.95, 0), Vector(4.65, 2.05, 0)),
    Part.ArcOfCircle(Part.Circle(Vector(4.45, 2.05, 0), Vector(0, 0, 1), 0.2), math.radians(0), math.radians(90)),
    Part.LineSegment(Vector(4.45, 2.25, 0), Vector(3.85, 2.25, 0)),
    Part.ArcOfCircle(Part.Circle(Vector(3.85, 2.05, 0), Vector(0, 0, 1), 0.2), math.radians(90), math.radians(180)),
    Part.LineSegment(Vector(3.65, 2.05, 0), Vector(3.65, 0.95, 0)),
    Part.ArcOfCircle(Part.Circle(Vector(3.85, 0.95, 0), Vector(0, 0, 1), 0.2), math.radians(-180), math.radians(-90)),
    Part.LineSegment(Vector(1.63, 1.9, 0), Vector(1.63, 1.1, 0)),
    Part.ArcOfCircle(Part.Circle(Vector(1.83, 1.1, 0), Vector(0, 0, 1), 0.2), math.radians(-180), math.radians(-90)),
    Part.LineSegment(Vector(1.83, 0.9, 0), Vector(2.23, 0.9, 0)),
    Part.ArcOfCircle(Part.Circle(Vector(2.23, 1.1, 0), Vector(0, 0, 1), 0.2), math.radians(-90), math.radians(0)),
    Part.LineSegment(Vector(2.43, 1.1, 0), Vector(2.43, 1.9, 0)),
    Part.ArcOfCircle(Part.Circle(Vector(2.23, 1.9, 0), Vector(0, 0, 1), 0.2), math.radians(0), math.radians(90)),
    Part.LineSegment(Vector(2.23, 2.1, 0), Vector(1.83, 2.1, 0)),
    Part.ArcOfCircle(Part.Circle(Vector(1.83, 1.9, 0), Vector(0, 0, 1), 0.2), math.radians(90), math.radians(180)),
    Part.LineSegment(Vector(0.39, 0.32, 0), Vector(0.99, 0.32, 0)),
    Part.ArcOfCircle(Part.Circle(Vector(0.99, 0.52, 0), Vector(0, 0, 1), 0.2), math.radians(-90), math.radians(0)),
    Part.LineSegment(Vector(1.19, 0.52, 0), Vector(1.19, 2.02, 0)),
    Part.ArcOfCircle(Part.Circle(Vector(0.99, 2.02, 0), Vector(0, 0, 1), 0.2), math.radians(0), math.radians(90)),
    Part.LineSegment(Vector(0.99, 2.22, 0), Vector(0.39, 2.22, 0)),
    Part.ArcOfCircle(Part.Circle(Vector(0.39, 2.02, 0), Vector(0, 0, 1), 0.2), math.radians(90), math.radians(180)),
    Part.LineSegment(Vector(0.19, 2.02, 0), Vector(0.19, 0.52, 0)),
    Part.ArcOfCircle(Part.Circle(Vector(0.39, 0.52, 0), Vector(0, 0, 1), 0.2), math.radians(-180), math.radians(-90)),
], False)
sketch6.addConstraint([
    Sketcher.Constraint("Tangent", 0, 2, 1, 1),
    Sketcher.Constraint("Tangent", 1, 2, 2, 1),
    Sketcher.Constraint("Tangent", 2, 2, 3, 1),
    Sketcher.Constraint("Tangent", 3, 2, 4, 1),
    Sketcher.Constraint("Tangent", 4, 2, 5, 1),
    Sketcher.Constraint("Tangent", 5, 2, 6, 1),
    Sketcher.Constraint("Tangent", 6, 2, 7, 1),
    Sketcher.Constraint("Tangent", 7, 2, 0, 1),
    Sketcher.Constraint("Tangent", 8, 2, 9, 1),
    Sketcher.Constraint("Tangent", 9, 2, 10, 1),
    Sketcher.Constraint("Tangent", 10, 2, 11, 1),
    Sketcher.Constraint("Tangent", 11, 2, 12, 1),
    Sketcher.Constraint("Tangent", 12, 2, 13, 1),
    Sketcher.Constraint("Tangent", 13, 2, 14, 1),
    Sketcher.Constraint("Tangent", 14, 2, 15, 1),
    Sketcher.Constraint("Tangent", 15, 2, 8, 1),
    Sketcher.Constraint("Tangent", 16, 2, 17, 1),
    Sketcher.Constraint("Tangent", 17, 2, 18, 1),
    Sketcher.Constraint("Tangent", 18, 2, 19, 1),
    Sketcher.Constraint("Tangent", 19, 2, 20, 1),
    Sketcher.Constraint("Tangent", 20, 2, 21, 1),
    Sketcher.Constraint("Tangent", 21, 2, 22, 1),
    Sketcher.Constraint("Tangent", 22, 2, 23, 1),
    Sketcher.Constraint("Tangent", 23, 2, 16, 1),
    Sketcher.Constraint("Horizontal", 0),
    Sketcher.Constraint("Vertical", 2),
    Sketcher.Constraint("Horizontal", 4),
    Sketcher.Constraint("Vertical", 6),
    Sketcher.Constraint("Vertical", 8),
    Sketcher.Constraint("Horizontal", 10),
    Sketcher.Constraint("Vertical", 12),
    Sketcher.Constraint("Horizontal", 14),
    Sketcher.Constraint("Horizontal", 16),
    Sketcher.Constraint("Vertical", 18),
    Sketcher.Constraint("Horizontal", 20),
    Sketcher.Constraint("Vertical", 22),
    Sketcher.Constraint("Equal", 1, 3),
    Sketcher.Constraint("Equal", 3, 5),
    Sketcher.Constraint("Equal", 5, 7),
    Sketcher.Constraint("Equal", 7, 9),
    Sketcher.Constraint("Equal", 9, 11),
    Sketcher.Constraint("Equal", 11, 13),
    Sketcher.Constraint("Equal", 13, 15),
    Sketcher.Constraint("Equal", 15, 17),
    Sketcher.Constraint("Equal", 17, 19),
    Sketcher.Constraint("Equal", 19, 21),
    Sketcher.Constraint("Equal", 21, 23),
    Sketcher.Constraint("Equal", 4, 16),
    Sketcher.Constraint("DistanceX", 0, 1, 0, 2, Q("0.6 mm")),
    Sketcher.Constraint("DistanceX", 10, 1, 10, 2, Q("0.4 mm")),
    Sketcher.Constraint("DistanceY", 2, 1, 2, 2, Q("1.1 mm")),
    Sketcher.Constraint("DistanceY", 8, 2, 8, 1, Q("0.8 mm")),
    Sketcher.Constraint("DistanceY", 18, 1, 18, 2, Q("1.5 mm")),
    Sketcher.Constraint("Radius", 1, Q("0.199 mm")),
    Sketcher.Constraint("DistanceY", -1, 1, 9, 3, Q("1.1 mm")),
    Sketcher.Constraint("DistanceX", -1, 1, 1, 3, Q("4.45 mm")),
    Sketcher.Constraint("DistanceY", -1, 1, 1, 3, Q("0.95 mm")),
    Sketcher.Constraint("DistanceX", -1, 1, 9, 3, Q("1.83 mm")),
    Sketcher.Constraint("DistanceX", -1, 1, 17, 3, Q("0.99 mm")),
    Sketcher.Constraint("DistanceY", -1, 1, 17, 3, Q("0.52 mm")),
])
pad4 = body.newObject("PartDesign::Pad", "Pad003")
pad4.Profile = sketch6
pad4.Length = 0.1

doc.recompute()
